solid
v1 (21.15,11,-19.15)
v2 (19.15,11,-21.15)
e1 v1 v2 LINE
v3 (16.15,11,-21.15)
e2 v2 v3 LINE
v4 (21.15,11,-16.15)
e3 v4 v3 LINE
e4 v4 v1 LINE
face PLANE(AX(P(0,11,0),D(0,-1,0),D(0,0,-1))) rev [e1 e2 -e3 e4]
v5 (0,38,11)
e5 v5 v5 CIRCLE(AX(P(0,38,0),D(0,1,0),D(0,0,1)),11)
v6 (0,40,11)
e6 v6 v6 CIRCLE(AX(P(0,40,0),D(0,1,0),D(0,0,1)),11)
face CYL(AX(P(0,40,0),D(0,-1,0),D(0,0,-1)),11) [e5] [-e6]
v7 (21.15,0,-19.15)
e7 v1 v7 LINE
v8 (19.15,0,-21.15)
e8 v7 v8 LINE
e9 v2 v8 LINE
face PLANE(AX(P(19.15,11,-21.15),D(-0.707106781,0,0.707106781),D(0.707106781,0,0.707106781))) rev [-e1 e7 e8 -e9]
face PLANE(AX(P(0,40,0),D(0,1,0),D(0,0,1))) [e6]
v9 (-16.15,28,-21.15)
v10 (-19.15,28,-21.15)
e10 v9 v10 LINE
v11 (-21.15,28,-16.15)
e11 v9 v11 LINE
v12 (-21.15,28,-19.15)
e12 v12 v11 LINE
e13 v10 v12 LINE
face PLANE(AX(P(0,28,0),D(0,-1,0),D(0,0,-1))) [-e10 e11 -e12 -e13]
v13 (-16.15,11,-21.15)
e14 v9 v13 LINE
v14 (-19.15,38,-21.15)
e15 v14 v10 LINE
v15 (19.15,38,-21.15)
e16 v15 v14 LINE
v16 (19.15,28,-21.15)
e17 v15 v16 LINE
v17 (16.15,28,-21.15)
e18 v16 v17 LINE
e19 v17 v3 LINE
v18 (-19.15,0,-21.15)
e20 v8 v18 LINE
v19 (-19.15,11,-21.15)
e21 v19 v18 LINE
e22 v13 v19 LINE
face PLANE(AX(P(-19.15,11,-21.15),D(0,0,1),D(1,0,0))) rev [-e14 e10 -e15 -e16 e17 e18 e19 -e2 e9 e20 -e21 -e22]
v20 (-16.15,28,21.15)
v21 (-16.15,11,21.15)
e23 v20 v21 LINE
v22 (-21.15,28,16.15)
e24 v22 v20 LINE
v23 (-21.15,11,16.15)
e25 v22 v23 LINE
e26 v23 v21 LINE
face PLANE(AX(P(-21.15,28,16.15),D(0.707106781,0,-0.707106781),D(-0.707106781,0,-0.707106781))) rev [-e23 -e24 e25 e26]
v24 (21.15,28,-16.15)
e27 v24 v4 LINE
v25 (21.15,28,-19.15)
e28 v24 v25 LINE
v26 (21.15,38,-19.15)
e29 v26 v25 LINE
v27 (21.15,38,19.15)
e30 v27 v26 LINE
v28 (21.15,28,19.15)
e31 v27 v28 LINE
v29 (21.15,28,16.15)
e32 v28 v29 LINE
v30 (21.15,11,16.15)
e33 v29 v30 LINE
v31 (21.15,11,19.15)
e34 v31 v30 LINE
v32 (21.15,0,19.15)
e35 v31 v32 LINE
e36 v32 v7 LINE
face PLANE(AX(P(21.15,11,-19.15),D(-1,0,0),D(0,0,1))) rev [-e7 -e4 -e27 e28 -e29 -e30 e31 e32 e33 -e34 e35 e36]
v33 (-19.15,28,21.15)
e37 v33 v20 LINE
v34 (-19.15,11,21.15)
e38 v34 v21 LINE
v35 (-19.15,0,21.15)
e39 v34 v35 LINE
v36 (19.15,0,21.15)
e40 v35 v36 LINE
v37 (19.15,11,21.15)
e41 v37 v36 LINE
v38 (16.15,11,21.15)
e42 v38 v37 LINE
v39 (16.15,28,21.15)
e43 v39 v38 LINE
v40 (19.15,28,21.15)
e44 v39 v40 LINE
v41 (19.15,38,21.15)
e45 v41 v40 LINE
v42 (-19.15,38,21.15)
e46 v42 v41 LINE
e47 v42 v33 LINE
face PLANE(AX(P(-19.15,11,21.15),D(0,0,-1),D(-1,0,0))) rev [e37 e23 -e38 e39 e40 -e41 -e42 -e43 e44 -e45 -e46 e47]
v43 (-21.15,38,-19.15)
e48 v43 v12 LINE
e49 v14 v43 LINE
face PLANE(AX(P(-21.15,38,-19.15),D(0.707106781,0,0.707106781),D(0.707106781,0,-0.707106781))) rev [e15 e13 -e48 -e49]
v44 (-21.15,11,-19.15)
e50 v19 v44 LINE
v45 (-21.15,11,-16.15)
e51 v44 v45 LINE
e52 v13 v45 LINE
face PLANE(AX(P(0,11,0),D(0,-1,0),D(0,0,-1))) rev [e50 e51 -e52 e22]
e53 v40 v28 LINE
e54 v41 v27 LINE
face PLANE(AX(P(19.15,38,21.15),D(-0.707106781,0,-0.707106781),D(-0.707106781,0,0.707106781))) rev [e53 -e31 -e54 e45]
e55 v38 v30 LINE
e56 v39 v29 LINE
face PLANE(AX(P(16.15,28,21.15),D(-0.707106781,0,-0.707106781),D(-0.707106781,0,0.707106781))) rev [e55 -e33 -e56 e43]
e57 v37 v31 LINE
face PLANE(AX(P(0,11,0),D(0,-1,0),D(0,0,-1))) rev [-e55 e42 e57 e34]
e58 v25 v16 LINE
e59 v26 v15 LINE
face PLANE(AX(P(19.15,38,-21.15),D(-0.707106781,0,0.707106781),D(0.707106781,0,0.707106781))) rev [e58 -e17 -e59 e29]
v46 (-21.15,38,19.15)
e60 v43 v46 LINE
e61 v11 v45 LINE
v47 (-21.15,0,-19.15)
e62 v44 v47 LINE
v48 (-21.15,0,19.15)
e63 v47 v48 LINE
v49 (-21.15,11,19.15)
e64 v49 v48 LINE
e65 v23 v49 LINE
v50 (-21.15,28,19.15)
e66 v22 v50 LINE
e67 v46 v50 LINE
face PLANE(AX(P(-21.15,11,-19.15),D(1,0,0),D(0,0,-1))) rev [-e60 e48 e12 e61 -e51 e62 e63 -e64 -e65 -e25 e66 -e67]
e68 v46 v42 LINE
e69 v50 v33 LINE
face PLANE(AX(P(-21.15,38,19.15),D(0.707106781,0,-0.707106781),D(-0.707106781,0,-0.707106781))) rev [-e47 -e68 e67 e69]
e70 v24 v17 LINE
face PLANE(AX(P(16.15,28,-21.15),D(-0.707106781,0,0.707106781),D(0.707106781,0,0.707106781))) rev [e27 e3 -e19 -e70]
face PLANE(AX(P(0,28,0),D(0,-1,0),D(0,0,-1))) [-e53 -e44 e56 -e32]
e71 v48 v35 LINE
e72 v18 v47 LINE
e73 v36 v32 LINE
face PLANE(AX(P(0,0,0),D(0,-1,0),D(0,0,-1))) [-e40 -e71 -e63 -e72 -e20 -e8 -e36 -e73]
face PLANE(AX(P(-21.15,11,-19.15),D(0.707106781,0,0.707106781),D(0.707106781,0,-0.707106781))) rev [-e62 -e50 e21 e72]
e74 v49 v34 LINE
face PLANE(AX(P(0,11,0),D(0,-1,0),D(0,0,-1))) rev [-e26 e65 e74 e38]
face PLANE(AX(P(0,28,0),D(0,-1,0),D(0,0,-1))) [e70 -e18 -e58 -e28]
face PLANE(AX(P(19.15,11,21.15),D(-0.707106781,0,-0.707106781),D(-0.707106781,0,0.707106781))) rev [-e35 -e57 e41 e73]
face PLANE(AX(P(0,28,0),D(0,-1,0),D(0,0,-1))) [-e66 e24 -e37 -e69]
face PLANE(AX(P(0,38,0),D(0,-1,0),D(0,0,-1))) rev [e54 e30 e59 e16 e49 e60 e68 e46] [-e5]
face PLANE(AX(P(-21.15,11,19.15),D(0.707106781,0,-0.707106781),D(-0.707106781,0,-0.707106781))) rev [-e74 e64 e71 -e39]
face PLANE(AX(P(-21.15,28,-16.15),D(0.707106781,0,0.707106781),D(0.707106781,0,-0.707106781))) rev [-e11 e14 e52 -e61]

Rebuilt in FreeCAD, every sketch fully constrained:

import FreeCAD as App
import Part
import Sketcher
from FreeCAD import Vector


def add_polygon(sketch, points):
    """Adds a closed chain of lines whose ends are joined by coincident constraints."""
    first, n = sketch.GeometryCount, len(points)
    for a, b in zip(points, points[1:] + points[:1]):
        sketch.addGeometry(Part.LineSegment(App.Vector(*a, 0), App.Vector(*b, 0)), False)
    for i in range(n):
        sketch.addConstraint(Sketcher.Constraint("Coincident", first + i, 2, first + (i + 1) % n, 1))

doc = App.newDocument("Part")
params = doc.addObject("Spreadsheet::Sheet", "Params")
for row, (alias, value) in enumerate([
    ("sketch1_width", "38.3 mm"),
    ("pad1_length", "11 mm"),
    ("sketch2_width", "32.3 mm"),
    ("pad2_length", "17 mm"),
    ("sketch3_width", "38.3 mm"),
    ("pad3_length", "10 mm"),
    ("sketch4_diameter", "22 mm"),
    ("pad4_length", "2 mm"),
], start=1):
    params.set(f"A{row}", alias)
    params.set(f"B{row}", "=" + value)
    params.setAlias(f"B{row}", alias)

body = doc.addObject("PartDesign::Body", "Body")

# Sketch on XZ plane
sketch1 = body.newObject("Sketcher::SketchObject", "Sketch")
sketch1.AttachmentSupport = (doc.getObject("XZ_Plane"), [""])
sketch1.MapMode = "FlatFace"
add_polygon(sketch1, [(19.1, 21.1), (21.1, 19.1), (21.1, -19.1), (19.1, -21.1), (-19.1, -21.1), (-21.1, -19.1), (-21.1, 19.1), (-19.1, 21.1)])  # lines 0-7
sketch1.addConstraint(Sketcher.Constraint("Vertical", 1))
sketch1.addConstraint(Sketcher.Constraint("Horizontal", 3))
sketch1.addConstraint(Sketcher.Constraint("Vertical", 5))
sketch1.addConstraint(Sketcher.Constraint("Horizontal", 7))
sketch1.addConstraint(Sketcher.Constraint("Symmetric", 0, 2, 4, 2, -1, 1))
sketch1.addConstraint(Sketcher.Constraint("Symmetric", 2, 2, 6, 2, -1, 1))
sketch1.addConstraint(Sketcher.Constraint("Perpendicular", 0, 2))
sketch1.addConstraint(Sketcher.Constraint("Perpendicular", 2, 4))
sketch1.addConstraint(Sketcher.Constraint("Perpendicular", 4, 6))
sketch1.addConstraint(Sketcher.Constraint("Horizontal", 1, 2, 4, 2))
sketch1.addConstraint(Sketcher.Constraint("Vertical", 3, 2, 6, 2))
sketch1.addConstraint(Sketcher.Constraint("Equal", 7, 1))
sketch1.addConstraint(Sketcher.Constraint("DistanceX", 3, 2, 3, 1, 38.3))
sketch1.addConstraint(Sketcher.Constraint("DistanceX", 2, 2, 1, 2, 2.0))
sketch1.setExpression("Constraints[20]", "Params.sketch1_width")
pad1 = body.newObject("PartDesign::Pad", "Pad")
pad1.Profile = sketch1
pad1.setExpression("Length", "Params.pad1_length")
pad1.Reversed = True

# Sketch on XZ plane
sketch2 = body.newObject("Sketcher::SketchObject", "Sketch001")
sketch2.AttachmentSupport = (doc.getObject("XZ_Plane"), [""])
sketch2.MapMode = "FlatFace"
sketch2.AttachmentOffset = App.Placement(Vector(0, 0, -11), App.Rotation())
add_polygon(sketch2, [(16, 21), (21, 16), (21, -16), (16, -21), (-16, -21), (-21, -16), (-21, 16), (-16, 21)])  # lines 0-7
sketch2.addConstraint(Sketcher.Constraint("Vertical", 1))
sketch2.addConstraint(Sketcher.Constraint("Horizontal", 3))
sketch2.addConstraint(Sketcher.Constraint("Vertical", 5))
sketch2.addConstraint(Sketcher.Constraint("Horizontal", 7))
sketch2.addConstraint(Sketcher.Constraint("Symmetric", 0, 2, 4, 2, -1, 1))
sketch2.addConstraint(Sketcher.Constraint("Symmetric", 2, 2, 6, 2, -1, 1))
sketch2.addConstraint(Sketcher.Constraint("Perpendicular", 0, 2))
sketch2.addConstraint(Sketcher.Constraint("Perpendicular", 2, 4))
sketch2.addConstraint(Sketcher.Constraint("Perpendicular", 4, 6))
sketch2.addConstraint(Sketcher.Constraint("Horizontal", 1, 2, 4, 2))
sketch2.addConstraint(Sketcher.Constraint("Vertical", 3, 2, 6, 2))
sketch2.addConstraint(Sketcher.Constraint("Equal", 7, 1))
sketch2.addConstraint(Sketcher.Constraint("DistanceX", 3, 2, 3, 1, 32.3))
sketch2.addConstraint(Sketcher.Constraint("DistanceX", 2, 2, 1, 2, 5.0))
sketch2.setExpression("Constraints[20]", "Params.sketch2_width")
pad2 = body.newObject("PartDesign::Pad", "Pad001")
pad2.Profile = sketch2
pad2.setExpression("Length", "Params.pad2_length")
pad2.Reversed = True

# Sketch on XZ plane
sketch3 = body.newObject("Sketcher::SketchObject", "Sketch002")
sketch3.AttachmentSupport = (doc.getObject("XZ_Plane"), [""])
sketch3.MapMode = "FlatFace"
sketch3.AttachmentOffset = App.Placement(Vector(0, 0, -28), App.Rotation())
add_polygon(sketch3, [(19.1, 21.1), (21.1, 19.1), (21.1, -19.1), (19.1, -21.1), (-19.1, -21.1), (-21.1, -19.1), (-21.1, 19.1), (-19.1, 21.1)])  # lines 0-7
sketch3.addConstraint(Sketcher.Constraint("Vertical", 1))
sketch3.addConstraint(Sketcher.Constraint("Horizontal", 3))
sketch3.addConstraint(Sketcher.Constraint("Vertical", 5))
sketch3.addConstraint(Sketcher.Constraint("Horizontal", 7))
sketch3.addConstraint(Sketcher.Constraint("Symmetric", 0, 2, 4, 2, -1, 1))
sketch3.addConstraint(Sketcher.Constraint("Symmetric", 2, 2, 6, 2, -1, 1))
sketch3.addConstraint(Sketcher.Constraint("Perpendicular", 0, 2))
sketch3.addConstraint(Sketcher.Constraint("Perpendicular", 2, 4))
sketch3.addConstraint(Sketcher.Constraint("Perpendicular", 4, 6))
sketch3.addConstraint(Sketcher.Constraint("Horizontal", 1, 2, 4, 2))
sketch3.addConstraint(Sketcher.Constraint("Vertical", 3, 2, 6, 2))
sketch3.addConstraint(Sketcher.Constraint("Equal", 7, 1))
sketch3.addConstraint(Sketcher.Constraint("DistanceX", 3, 2, 3, 1, 38.3))
sketch3.addConstraint(Sketcher.Constraint("DistanceX", 2, 2, 1, 2, 2.0))
sketch3.setExpression("Constraints[20]", "Params.sketch3_width")
pad3 = body.newObject("PartDesign::Pad", "Pad002")
pad3.Profile = sketch3
pad3.setExpression("Length", "Params.pad3_length")
pad3.Reversed = True

# Sketch on XZ plane
sketch4 = body.newObject("Sketcher::SketchObject", "Sketch003")
sketch4.AttachmentSupport = (doc.getObject("XZ_Plane"), [""])
sketch4.MapMode = "FlatFace"
sketch4.AttachmentOffset = App.Placement(Vector(0, 0, -38), App.Rotation())
sketch4.addGeometry(Part.Circle(Vector(0, 0, 0), Vector(0, 0, 1), 11), False)
sketch4.addConstraint(Sketcher.Constraint("Coincident", 0, 3, -1, 1))
sketch4.addConstraint(Sketcher.Constraint("Diameter", 0, 22.0))
sketch4.setExpression("Constraints[1]", "Params.sketch4_diameter")
pad4 = body.newObject("PartDesign::Pad", "Pad003")
pad4.Profile = sketch4
pad4.setExpression("Length", "Params.pad4_length")
pad4.Reversed = True

doc.recompute()
